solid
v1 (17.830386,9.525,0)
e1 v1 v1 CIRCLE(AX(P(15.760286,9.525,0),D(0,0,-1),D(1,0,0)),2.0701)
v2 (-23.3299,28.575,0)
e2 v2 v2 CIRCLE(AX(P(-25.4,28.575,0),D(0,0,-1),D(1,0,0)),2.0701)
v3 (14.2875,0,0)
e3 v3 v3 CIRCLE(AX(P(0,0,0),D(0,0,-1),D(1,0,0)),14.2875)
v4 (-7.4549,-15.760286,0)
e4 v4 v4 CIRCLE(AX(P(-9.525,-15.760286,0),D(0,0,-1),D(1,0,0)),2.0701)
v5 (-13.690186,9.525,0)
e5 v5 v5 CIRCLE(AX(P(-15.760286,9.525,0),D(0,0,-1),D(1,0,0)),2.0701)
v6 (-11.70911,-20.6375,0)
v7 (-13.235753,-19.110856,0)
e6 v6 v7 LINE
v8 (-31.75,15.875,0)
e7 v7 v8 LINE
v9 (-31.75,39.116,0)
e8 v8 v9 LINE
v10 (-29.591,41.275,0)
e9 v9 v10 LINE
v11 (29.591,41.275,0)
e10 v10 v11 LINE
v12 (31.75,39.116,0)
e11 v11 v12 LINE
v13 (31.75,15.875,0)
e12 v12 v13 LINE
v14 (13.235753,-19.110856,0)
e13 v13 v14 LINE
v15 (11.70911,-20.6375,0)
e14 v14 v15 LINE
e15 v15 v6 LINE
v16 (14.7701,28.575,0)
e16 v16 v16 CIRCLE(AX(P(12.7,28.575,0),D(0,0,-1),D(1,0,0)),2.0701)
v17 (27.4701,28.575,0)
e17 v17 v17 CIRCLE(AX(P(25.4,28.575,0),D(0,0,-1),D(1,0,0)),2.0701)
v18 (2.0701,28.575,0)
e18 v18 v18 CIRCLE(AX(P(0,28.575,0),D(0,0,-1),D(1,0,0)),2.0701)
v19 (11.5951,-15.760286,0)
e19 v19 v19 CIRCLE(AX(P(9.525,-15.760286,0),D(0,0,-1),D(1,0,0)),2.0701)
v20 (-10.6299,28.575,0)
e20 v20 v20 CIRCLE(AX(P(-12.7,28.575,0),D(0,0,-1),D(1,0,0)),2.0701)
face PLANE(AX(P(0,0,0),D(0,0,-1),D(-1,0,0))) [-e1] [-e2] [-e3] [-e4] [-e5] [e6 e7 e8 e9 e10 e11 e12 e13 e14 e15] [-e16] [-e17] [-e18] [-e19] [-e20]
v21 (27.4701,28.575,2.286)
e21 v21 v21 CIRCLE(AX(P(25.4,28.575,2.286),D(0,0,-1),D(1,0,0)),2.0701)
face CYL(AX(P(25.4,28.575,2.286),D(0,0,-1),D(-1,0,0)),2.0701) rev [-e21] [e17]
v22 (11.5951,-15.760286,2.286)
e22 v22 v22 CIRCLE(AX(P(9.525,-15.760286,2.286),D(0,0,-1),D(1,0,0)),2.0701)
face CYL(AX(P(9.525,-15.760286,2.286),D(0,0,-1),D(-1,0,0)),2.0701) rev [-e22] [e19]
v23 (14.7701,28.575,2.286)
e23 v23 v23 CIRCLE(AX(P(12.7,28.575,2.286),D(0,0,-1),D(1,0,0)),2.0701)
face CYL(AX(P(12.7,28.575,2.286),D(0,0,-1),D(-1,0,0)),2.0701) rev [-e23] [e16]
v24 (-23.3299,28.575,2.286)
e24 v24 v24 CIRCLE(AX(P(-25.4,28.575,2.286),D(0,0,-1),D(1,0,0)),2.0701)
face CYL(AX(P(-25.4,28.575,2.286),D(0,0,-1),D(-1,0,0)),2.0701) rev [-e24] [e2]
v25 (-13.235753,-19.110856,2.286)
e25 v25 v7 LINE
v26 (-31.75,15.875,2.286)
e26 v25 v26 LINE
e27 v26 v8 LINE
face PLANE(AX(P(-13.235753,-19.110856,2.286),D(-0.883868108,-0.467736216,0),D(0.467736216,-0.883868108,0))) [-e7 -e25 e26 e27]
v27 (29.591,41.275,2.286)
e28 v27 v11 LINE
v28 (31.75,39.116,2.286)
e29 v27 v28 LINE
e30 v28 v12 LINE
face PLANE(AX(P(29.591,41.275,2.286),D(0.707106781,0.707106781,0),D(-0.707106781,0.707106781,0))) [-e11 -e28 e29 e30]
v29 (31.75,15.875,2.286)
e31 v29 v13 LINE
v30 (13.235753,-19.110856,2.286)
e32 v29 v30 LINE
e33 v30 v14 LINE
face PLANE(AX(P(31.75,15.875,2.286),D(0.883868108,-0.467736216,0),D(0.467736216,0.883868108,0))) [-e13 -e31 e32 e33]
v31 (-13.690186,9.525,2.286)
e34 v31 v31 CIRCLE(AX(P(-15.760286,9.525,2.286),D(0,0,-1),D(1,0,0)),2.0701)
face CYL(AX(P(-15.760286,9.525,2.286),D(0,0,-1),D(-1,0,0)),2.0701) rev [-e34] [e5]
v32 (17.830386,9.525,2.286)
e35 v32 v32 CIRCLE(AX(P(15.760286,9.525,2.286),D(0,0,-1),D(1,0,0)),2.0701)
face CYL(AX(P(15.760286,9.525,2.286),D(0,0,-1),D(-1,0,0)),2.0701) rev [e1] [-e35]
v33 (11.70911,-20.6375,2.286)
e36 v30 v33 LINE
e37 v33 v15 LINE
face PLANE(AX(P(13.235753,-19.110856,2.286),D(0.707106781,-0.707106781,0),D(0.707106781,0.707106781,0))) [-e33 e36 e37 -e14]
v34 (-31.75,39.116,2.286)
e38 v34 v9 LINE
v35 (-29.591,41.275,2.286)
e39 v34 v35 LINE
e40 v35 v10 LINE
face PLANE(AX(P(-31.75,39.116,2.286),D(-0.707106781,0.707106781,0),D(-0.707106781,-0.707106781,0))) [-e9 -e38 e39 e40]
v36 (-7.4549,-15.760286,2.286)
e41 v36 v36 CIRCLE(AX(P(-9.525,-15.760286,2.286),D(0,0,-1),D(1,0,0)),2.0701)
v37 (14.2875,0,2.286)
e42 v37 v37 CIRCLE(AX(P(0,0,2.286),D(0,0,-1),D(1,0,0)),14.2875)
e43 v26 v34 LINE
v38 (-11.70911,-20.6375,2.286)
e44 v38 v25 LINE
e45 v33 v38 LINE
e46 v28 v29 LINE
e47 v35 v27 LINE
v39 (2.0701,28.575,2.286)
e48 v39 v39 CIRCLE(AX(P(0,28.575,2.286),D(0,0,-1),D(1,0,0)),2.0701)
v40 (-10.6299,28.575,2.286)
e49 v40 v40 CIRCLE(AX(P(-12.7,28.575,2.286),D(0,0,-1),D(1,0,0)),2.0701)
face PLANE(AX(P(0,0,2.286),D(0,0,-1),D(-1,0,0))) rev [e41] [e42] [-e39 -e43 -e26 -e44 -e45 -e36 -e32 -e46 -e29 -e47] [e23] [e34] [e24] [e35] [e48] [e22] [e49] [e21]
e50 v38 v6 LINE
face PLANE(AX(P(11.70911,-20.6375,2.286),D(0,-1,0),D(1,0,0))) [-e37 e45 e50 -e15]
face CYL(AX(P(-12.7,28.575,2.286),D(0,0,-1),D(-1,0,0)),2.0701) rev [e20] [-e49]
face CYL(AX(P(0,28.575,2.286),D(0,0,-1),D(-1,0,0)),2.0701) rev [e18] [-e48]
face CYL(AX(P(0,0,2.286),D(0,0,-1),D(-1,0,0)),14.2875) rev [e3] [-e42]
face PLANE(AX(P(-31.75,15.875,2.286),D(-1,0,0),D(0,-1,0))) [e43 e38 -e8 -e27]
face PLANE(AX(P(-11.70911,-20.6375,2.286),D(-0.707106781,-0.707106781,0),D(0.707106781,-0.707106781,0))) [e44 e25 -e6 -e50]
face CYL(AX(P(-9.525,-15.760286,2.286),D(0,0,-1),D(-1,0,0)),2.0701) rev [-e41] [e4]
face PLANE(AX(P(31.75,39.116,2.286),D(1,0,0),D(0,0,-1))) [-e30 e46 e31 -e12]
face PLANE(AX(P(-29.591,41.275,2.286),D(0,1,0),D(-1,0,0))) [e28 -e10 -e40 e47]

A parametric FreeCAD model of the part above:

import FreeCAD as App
import Part
import Sketcher
Q = App.Units.Quantity

doc = App.newDocument("Part")
body = doc.addObject("PartDesign::Body", "Body")

# Sketch on XY plane
sketch1 = body.newObject("Sketcher::SketchObject", "Sketch")
sketch1.AttachmentSupport = (doc.getObject("XY_Plane"), [""])
sketch1.MapMode = "FlatFace"
sketch1.addGeometry([
    Part.LineSegment(App.Vector(29.6, 41.3, 0), App.Vector(31.8, 39.1, 0)),  # 0
    Part.LineSegment(App.Vector(31.8, 39.1, 0), App.Vector(31.8, 15.9, 0)),  # 1
    Part.LineSegment(App.Vector(31.8, 15.9, 0), App.Vector(13.2, -19.1, 0)),  # 2
    Part.LineSegment(App.Vector(13.2, -19.1, 0), App.Vector(11.7, -20.6, 0)),  # 3
    Part.LineSegment(App.Vector(11.7, -20.6, 0), App.Vector(-11.7, -20.6, 0)),  # 4
    Part.LineSegment(App.Vector(-11.7, -20.6, 0), App.Vector(-13.2, -19.1, 0)),  # 5
    Part.LineSegment(App.Vector(-13.2, -19.1, 0), App.Vector(-31.8, 15.9, 0)),  # 6
    Part.LineSegment(App.Vector(-31.8, 15.9, 0), App.Vector(-31.8, 39.1, 0)),  # 7
    Part.LineSegment(App.Vector(-31.8, 39.1, 0), App.Vector(-29.6, 41.3, 0)),  # 8
    Part.LineSegment(App.Vector(-29.6, 41.3, 0), App.Vector(29.6, 41.3, 0)),  # 9
    Part.Circle(App.Vector(9.5, -15.8, 0), App.Vector(0, 0, 1), 2.1),  # 10
    Part.Circle(App.Vector(0, 0, 0), App.Vector(0, 0, 1), 14.3),  # 11
    Part.Circle(App.Vector(-9.5, -15.8, 0), App.Vector(0, 0, 1), 2.1),  # 12
    Part.Circle(App.Vector(15.8, 9.5, 0), App.Vector(0, 0, 1), 2.1),  # 13
    Part.Circle(App.Vector(25.4, 28.6, 0), App.Vector(0, 0, 1), 2.1),  # 14
    Part.Circle(App.Vector(12.7, 28.6, 0), App.Vector(0, 0, 1), 2.1),  # 15
    Part.Circle(App.Vector(0, 28.6, 0), App.Vector(0, 0, 1), 2.1),  # 16
    Part.Circle(App.Vector(-15.8, 9.5, 0), App.Vector(0, 0, 1), 2.1),  # 17
    Part.Circle(App.Vector(-12.7, 28.6, 0), App.Vector(0, 0, 1), 2.1),  # 18
    Part.Circle(App.Vector(-25.4, 28.6, 0), App.Vector(0, 0, 1), 2.1),  # 19
], False)
sketch1.addConstraint([
    Sketcher.Constraint("Coincident", 0, 2, 1, 1),
    Sketcher.Constraint("Coincident", 1, 2, 2, 1),
    Sketcher.Constraint("Coincident", 2, 2, 3, 1),
    Sketcher.Constraint("Coincident", 3, 2, 4, 1),
    Sketcher.Constraint("Coincident", 4, 2, 5, 1),
    Sketcher.Constraint("Coincident", 5, 2, 6, 1),
    Sketcher.Constraint("Coincident", 6, 2, 7, 1),
    Sketcher.Constraint("Coincident", 7, 2, 8, 1),
    Sketcher.Constraint("Coincident", 8, 2, 9, 1),
    Sketcher.Constraint("Coincident", 9, 2, 0, 1),
    Sketcher.Constraint("Vertical", 1),
    Sketcher.Constraint("Horizontal", 4),
    Sketcher.Constraint("Vertical", 7),
    Sketcher.Constraint("Horizontal", 9),
    Sketcher.Constraint("Coincident", 11, 3, -1, 1),
    Sketcher.Constraint("Equal", 10, 12),
    Sketcher.Constraint("Equal", 12, 13),
    Sketcher.Constraint("Equal", 13, 14),
    Sketcher.Constraint("Equal", 14, 15),
    Sketcher.Constraint("Equal", 15, 16),
    Sketcher.Constraint("Equal", 16, 17),
    Sketcher.Constraint("Equal", 17, 18),
    Sketcher.Constraint("Equal", 18, 19),
    Sketcher.Constraint("Symmetric", 10, 3, 12, 3, -2),
    Sketcher.Constraint("Symmetric", 13, 3, 17, 3, -2),
    Sketcher.Constraint("Symmetric", 15, 3, 18, 3, -2),
    Sketcher.Constraint("Symmetric", 14, 3, 19, 3, -2),
    Sketcher.Constraint("Symmetric", 2, 2, 5, 2, -2),
    Sketcher.Constraint("Symmetric", 1, 2, 6, 2, -2),
    Sketcher.Constraint("PointOnObject", 16, 3, -2),
    Sketcher.Constraint("Perpendicular", 0, 3),
    Sketcher.Constraint("Perpendicular", 3, 5),
    Sketcher.Constraint("Perpendicular", 5, 8),
    Sketcher.Constraint("Horizontal", 14, 3, 15, 3),
    Sketcher.Constraint("Horizontal", 15, 3, 16, 3),
    Sketcher.Constraint("Horizontal", 0, 2, 7, 2),
    Sketcher.Constraint("Equal", 3, 5),
    Sketcher.Constraint("Diameter", 10, Q("0.163 in")),
    Sketcher.Constraint("Diameter", 11, Q("1.125 in")),
    Sketcher.Constraint("DistanceX", -1, 1, 14, 3, Q("1 in")),
    Sketcher.Constraint("DistanceX", 18, 3, 15, 3, Q("1 in")),
    Sketcher.Constraint("DistanceY", 6, 2, 8, 2, Q("1 in")),
    Sketcher.Constraint("DistanceX", 9, 1, 9, 2, Q("2.33 in")),
    Sketcher.Constraint("DistanceY", 1, 2, 14, 3, Q("0.5 in")),
    Sketcher.Constraint("DistanceY", 1, 2, 1, 1, Q("0.915 in")),
    Sketcher.Constraint("DistanceY", -1, 1, 0, 2, Q("1.54 in")),
    Sketcher.Constraint("DistanceX", 12, 3, 10, 3, Q("0.75 in")),
    Sketcher.Constraint("DistanceY", 13, 3, 14, 3, Q("0.75 in")),
    Sketcher.Constraint("Distance", 3, Q("0.085 in")),
    Sketcher.Constraint("DistanceY", 3, 2, -1, 1, Q("0.8125 in")),
    Sketcher.Constraint("DistanceX", 4, 2, 4, 1, 23.41822),
    Sketcher.Constraint("DistanceX", 17, 3, 13, 3, 31.520571),
    Sketcher.Constraint("DistanceY", 2, 2, 10, 3, 3.350571),
])
pad1 = body.newObject("PartDesign::Pad", "Pad")
pad1.Profile = sketch1
pad1.Length = Q("0.09 in")

doc.recompute()
